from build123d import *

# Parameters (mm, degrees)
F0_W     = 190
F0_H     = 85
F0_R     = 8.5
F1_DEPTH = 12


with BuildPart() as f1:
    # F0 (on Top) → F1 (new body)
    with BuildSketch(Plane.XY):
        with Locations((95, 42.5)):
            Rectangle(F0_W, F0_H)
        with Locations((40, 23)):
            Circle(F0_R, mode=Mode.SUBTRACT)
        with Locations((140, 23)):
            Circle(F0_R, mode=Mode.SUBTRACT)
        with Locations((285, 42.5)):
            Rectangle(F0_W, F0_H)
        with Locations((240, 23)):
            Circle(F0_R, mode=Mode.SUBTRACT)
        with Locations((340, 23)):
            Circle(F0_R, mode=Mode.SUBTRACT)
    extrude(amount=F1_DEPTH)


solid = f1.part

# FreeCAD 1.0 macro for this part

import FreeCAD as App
import Part
import Sketcher

V = App.Vector


def add_polygon(sketch, points):
    """Adds a closed chain of lines whose ends are joined by coincident constraints."""
    first, n = sketch.GeometryCount, len(points)
    for a, b in zip(points, points[1:] + points[:1]):
        sketch.addGeometry(Part.LineSegment(App.Vector(*a, 0), App.Vector(*b, 0)), False)
    for i in range(n):
        sketch.addConstraint(Sketcher.Constraint("Coincident", first + i, 2, first + (i + 1) % n, 1))

doc = App.newDocument("Part")
body = doc.addObject("PartDesign::Body", "Body")

# Sketch on XY plane
sketch1 = body.newObject("Sketcher::SketchObject", "Sketch")
sketch1.AttachmentSupport = (doc.getObject("XY_Plane"), [""])
sketch1.MapMode = "FlatFace"
add_polygon(sketch1, [(0, 85), (0, 0), (380, 0), (380, 85)])  # lines 0-3
sketch1.addGeometry(Part.Circle(V(40, 23, 0), V(0, 0, 1), 8.5), False)  # 4
sketch1.addGeometry(Part.Circle(V(140, 23, 0), V(0, 0, 1), 8.5), False)  # 5
sketch1.addGeometry(Part.Circle(V(240, 23, 0), V(0, 0, 1), 8.5), False)  # 6
sketch1.addGeometry(Part.Circle(V(340, 23, 0), V(0, 0, 1), 8.5), False)  # 7
sketch1.addConstraint(Sketcher.Constraint("Vertical", 0))
sketch1.addConstraint(Sketcher.Constraint("Horizontal", 1))
sketch1.addConstraint(Sketcher.Constraint("Vertical", 2))
sketch1.addConstraint(Sketcher.Constraint("Horizontal", 3))
sketch1.addConstraint(Sketcher.Constraint("Coincident", 0, 2, -1, 1))
sketch1.addConstraint(Sketcher.Constraint("Equal", 4, 5))
sketch1.addConstraint(Sketcher.Constraint("Equal", 5, 6))
sketch1.addConstraint(Sketcher.Constraint("Equal", 6, 7))
sketch1.addConstraint(Sketcher.Constraint("Horizontal", 4, 3, 5, 3))
sketch1.addConstraint(Sketcher.Constraint("Horizontal", 5, 3, 6, 3))
sketch1.addConstraint(Sketcher.Constraint("Horizontal", 6, 3, 7, 3))
sketch1.addConstraint(Sketcher.Constraint("Diameter", 4, 17.0))
sketch1.addConstraint(Sketcher.Constraint("DistanceX", 1, 1, 1, 2, 380.0))
sketch1.addConstraint(Sketcher.Constraint("DistanceY", 0, 2, 0, 1, 85.0))
sketch1.addConstraint(Sketcher.Constraint("DistanceX", -1, 1, 4, 3, 40.0))
sketch1.addConstraint(Sketcher.Constraint("DistanceY", -1, 1, 4, 3, 23.0))
sketch1.addConstraint(Sketcher.Constraint("DistanceX", -1, 1, 5, 3, 140.0))
sketch1.addConstraint(Sketcher.Constraint("DistanceX", -1, 1, 6, 3, 240.0))
sketch1.addConstraint(Sketcher.Constraint("DistanceX", -1, 1, 7, 3, 340.0))
pad1 = body.newObject("PartDesign::Pad", "Pad")
pad1.Profile = sketch1
pad1.Length = 12

doc.recompute()
